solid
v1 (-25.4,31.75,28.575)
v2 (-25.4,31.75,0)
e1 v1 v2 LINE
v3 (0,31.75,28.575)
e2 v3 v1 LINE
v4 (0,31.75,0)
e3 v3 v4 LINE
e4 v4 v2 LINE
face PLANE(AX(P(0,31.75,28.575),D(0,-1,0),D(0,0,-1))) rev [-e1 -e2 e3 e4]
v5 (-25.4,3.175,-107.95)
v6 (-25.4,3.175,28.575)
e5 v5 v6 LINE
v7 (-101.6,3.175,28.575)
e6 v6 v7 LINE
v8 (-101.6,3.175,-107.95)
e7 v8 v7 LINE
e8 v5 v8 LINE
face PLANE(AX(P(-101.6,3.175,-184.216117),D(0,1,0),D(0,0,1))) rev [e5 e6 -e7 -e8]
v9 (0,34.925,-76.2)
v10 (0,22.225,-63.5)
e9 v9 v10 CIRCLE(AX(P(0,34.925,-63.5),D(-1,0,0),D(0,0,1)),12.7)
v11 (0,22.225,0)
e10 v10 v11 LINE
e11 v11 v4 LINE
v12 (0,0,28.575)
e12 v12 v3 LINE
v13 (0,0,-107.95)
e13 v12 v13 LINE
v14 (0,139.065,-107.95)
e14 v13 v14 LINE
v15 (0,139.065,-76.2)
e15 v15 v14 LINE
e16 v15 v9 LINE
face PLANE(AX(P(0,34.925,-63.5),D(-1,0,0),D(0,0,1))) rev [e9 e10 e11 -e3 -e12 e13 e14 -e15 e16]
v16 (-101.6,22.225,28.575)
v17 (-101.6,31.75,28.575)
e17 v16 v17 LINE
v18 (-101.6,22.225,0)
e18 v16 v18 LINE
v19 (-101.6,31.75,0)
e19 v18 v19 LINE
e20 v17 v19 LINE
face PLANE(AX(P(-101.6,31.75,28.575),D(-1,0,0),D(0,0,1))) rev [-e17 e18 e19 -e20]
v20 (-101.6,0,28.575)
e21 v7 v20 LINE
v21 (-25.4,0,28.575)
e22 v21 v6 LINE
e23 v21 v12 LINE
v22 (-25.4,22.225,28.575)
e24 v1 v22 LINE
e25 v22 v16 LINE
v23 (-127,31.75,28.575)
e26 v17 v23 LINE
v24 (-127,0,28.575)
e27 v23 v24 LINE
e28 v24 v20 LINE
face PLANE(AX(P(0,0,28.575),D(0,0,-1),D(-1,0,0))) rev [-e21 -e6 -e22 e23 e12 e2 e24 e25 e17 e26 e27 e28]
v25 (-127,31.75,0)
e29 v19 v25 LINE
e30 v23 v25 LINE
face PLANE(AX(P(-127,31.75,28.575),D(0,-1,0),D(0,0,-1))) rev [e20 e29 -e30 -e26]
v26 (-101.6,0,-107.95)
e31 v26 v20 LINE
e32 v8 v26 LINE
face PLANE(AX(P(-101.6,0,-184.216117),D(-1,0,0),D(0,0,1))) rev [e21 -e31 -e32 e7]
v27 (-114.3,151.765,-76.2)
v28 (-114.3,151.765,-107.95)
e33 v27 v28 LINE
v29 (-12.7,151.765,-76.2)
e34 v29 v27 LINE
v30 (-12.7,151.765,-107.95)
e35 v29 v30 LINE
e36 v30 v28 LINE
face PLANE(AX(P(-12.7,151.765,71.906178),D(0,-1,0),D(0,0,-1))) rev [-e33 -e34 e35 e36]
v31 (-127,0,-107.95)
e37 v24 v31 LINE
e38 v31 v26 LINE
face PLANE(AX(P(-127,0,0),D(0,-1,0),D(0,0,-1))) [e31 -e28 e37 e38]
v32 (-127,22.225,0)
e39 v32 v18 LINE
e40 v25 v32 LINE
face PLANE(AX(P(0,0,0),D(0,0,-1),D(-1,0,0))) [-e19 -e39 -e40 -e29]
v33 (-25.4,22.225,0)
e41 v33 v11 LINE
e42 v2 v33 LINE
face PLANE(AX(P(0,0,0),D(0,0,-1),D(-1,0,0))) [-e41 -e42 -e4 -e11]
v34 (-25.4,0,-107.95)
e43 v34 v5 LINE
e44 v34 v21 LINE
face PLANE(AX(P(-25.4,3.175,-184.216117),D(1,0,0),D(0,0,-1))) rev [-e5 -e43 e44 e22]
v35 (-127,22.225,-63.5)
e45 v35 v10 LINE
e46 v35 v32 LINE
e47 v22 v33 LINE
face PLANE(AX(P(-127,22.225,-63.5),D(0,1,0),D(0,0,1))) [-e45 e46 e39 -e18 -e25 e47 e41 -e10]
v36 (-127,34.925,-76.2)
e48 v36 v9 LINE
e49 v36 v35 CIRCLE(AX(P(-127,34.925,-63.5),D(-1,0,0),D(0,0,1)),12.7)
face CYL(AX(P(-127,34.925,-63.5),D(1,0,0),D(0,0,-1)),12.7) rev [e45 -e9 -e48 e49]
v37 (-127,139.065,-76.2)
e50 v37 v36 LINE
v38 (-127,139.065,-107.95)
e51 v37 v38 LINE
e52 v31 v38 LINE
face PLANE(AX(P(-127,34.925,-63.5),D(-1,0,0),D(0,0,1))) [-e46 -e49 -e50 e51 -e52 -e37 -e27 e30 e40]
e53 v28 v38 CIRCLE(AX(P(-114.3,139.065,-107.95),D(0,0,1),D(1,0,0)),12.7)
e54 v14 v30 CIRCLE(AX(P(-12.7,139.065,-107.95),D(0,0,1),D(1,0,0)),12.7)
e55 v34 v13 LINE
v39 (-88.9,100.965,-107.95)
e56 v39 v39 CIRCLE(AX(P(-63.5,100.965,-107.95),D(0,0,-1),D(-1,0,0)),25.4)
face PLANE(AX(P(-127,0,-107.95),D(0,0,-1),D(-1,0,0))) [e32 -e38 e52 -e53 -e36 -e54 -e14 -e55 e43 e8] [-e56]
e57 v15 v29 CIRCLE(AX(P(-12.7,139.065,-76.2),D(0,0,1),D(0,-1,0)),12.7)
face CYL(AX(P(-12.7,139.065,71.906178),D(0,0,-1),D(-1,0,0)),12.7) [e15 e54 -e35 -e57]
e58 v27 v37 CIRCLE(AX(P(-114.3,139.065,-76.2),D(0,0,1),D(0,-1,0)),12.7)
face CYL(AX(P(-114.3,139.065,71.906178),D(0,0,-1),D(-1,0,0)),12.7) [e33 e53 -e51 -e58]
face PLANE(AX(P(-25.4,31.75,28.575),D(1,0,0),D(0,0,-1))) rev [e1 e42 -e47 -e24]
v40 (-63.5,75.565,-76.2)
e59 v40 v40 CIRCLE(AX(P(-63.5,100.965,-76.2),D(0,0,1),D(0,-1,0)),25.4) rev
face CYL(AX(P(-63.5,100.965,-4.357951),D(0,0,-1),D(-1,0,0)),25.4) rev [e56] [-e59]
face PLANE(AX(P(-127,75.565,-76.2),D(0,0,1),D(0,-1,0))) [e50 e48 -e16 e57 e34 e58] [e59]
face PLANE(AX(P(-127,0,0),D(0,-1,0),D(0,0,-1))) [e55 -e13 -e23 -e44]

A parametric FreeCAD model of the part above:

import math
import FreeCAD as App
import Part
import Sketcher
Q = App.Units.Quantity

doc = App.newDocument("Part")
body = doc.addObject("PartDesign::Body", "Body")

sketch1 = body.newObject("Sketcher::SketchObject", "Sketch")
sketch1.AttachmentSupport = (doc.getObject("YZ_Plane"), [""])
sketch1.MapMode = "FlatFace"
sketch1.addGeometry([
    Part.LineSegment(App.Vector(0, 0, 0), App.Vector(0, -107.95, 0)),
    Part.LineSegment(App.Vector(0, -107.95, 0), App.Vector(75.565, -107.95, 0)),
    Part.LineSegment(App.Vector(75.565, -107.95, 0), App.Vector(75.565, -76.2, 0)),
    Part.LineSegment(App.Vector(75.565, -76.2, 0), App.Vector(34.925, -76.2, 0)),
    Part.ArcOfCircle(Part.Circle(App.Vector(34.925, -63.5, 0), App.Vector(0, 0, 1), 12.7), math.radians(180), math.radians(270)),
    Part.LineSegment(App.Vector(22.225, -63.5, 0), App.Vector(22.225, 0, 0)),
    Part.LineSegment(App.Vector(22.225, 0, 0), App.Vector(0, 0, 0)),
], False)
sketch1.addConstraint([
    Sketcher.Constraint("Coincident", 0, 2, 1, 1),
    Sketcher.Constraint("Coincident", 1, 2, 2, 1),
    Sketcher.Constraint("Coincident", 2, 2, 3, 1),
    Sketcher.Constraint("Tangent", 3, 2, 4, 2),
    Sketcher.Constraint("Tangent", 4, 1, 5, 1),
    Sketcher.Constraint("Coincident", 5, 2, 6, 1),
    Sketcher.Constraint("Coincident", 6, 2, 0, 1),
    Sketcher.Constraint("Vertical", 0),
    Sketcher.Constraint("Horizontal", 1),
    Sketcher.Constraint("Vertical", 2),
    Sketcher.Constraint("Horizontal", 3),
    Sketcher.Constraint("Vertical", 5),
    Sketcher.Constraint("Horizontal", 6),
    Sketcher.Constraint("Coincident", 6, 2, -1, 1),
    Sketcher.Constraint("Radius", 4, Q("0.5 in")),
    Sketcher.Constraint("DistanceX", 3, 2, 3, 1, Q("1.6 in")),
    Sketcher.Constraint("DistanceY", 5, 1, 5, 2, Q("2.5 in")),
    Sketcher.Constraint("DistanceY", 0, 2, 0, 1, Q("4.25 in")),
    Sketcher.Constraint("DistanceX", 1, 1, 1, 2, Q("2.975 in")),
])
pad1 = body.newObject("PartDesign::Pad", "Pad")
pad1.Profile = sketch1
pad1.Length = Q("5 in")
pad1.Reversed = True

sketch2 = body.newObject("Sketcher::SketchObject", "Sketch001")
sketch2.AttachmentSupport = (doc.getObject("XY_Plane"), [""])
sketch2.MapMode = "FlatFace"
sketch2.addGeometry([
    Part.LineSegment(App.Vector(0, 0, 0), App.Vector(0, 31.75, 0)),
    Part.LineSegment(App.Vector(0, 31.75, 0), App.Vector(-25.4, 31.75, 0)),
    Part.LineSegment(App.Vector(-25.4, 31.75, 0), App.Vector(-25.4, 22.225, 0)),
    Part.LineSegment(App.Vector(-25.4, 22.225, 0), App.Vector(-101.6, 22.225, 0)),
    Part.LineSegment(App.Vector(-101.6, 22.225, 0), App.Vector(-101.6, 31.75, 0)),
    Part.LineSegment(App.Vector(-101.6, 31.75, 0), App.Vector(-127, 31.75, 0)),
    Part.LineSegment(App.Vector(-127, 31.75, 0), App.Vector(-127, 0, 0)),
    Part.LineSegment(App.Vector(-127, 0, 0), App.Vector(0, 0, 0)),
], False)
sketch2.addConstraint([
    Sketcher.Constraint("Coincident", 0, 2, 1, 1),
    Sketcher.Constraint("Coincident", 1, 2, 2, 1),
    Sketcher.Constraint("Coincident", 2, 2, 3, 1),
    Sketcher.Constraint("Coincident", 3, 2, 4, 1),
    Sketcher.Constraint("Coincident", 4, 2, 5, 1),
    Sketcher.Constraint("Coincident", 5, 2, 6, 1),
    Sketcher.Constraint("Coincident", 6, 2, 7, 1),
    Sketcher.Constraint("Coincident", 7, 2, 0, 1),
    Sketcher.Constraint("Vertical", 0),
    Sketcher.Constraint("Horizontal", 1),
    Sketcher.Constraint("Vertical", 2),
    Sketcher.Constraint("Horizontal", 3),
    Sketcher.Constraint("Vertical", 4),
    Sketcher.Constraint("Horizontal", 5),
    Sketcher.Constraint("Vertical", 6),
    Sketcher.Constraint("Horizontal", 7),
    Sketcher.Constraint("Coincident", 7, 2, -1, 1),
    Sketcher.Constraint("Horizontal", 1, 2, 4, 2),
    Sketcher.Constraint("Equal", 1, 5),
    Sketcher.Constraint("DistanceX", 1, 2, 1, 1, Q("1 in")),
    Sketcher.Constraint("DistanceX", 3, 2, 3, 1, Q("3 in")),
    Sketcher.Constraint("DistanceY", 0, 1, 0, 2, Q("1.25 in")),
    Sketcher.Constraint("DistanceY", 2, 2, 2, 1, Q("0.375 in")),
])
pad2 = body.newObject("PartDesign::Pad", "Pad001")
pad2.Profile = sketch2
pad2.Length = Q("1.125 in")

sketch3 = body.newObject("Sketcher::SketchObject", "Sketch002")
sketch3.AttachmentSupport = (doc.getObject("XY_Plane"), [""])
sketch3.MapMode = "FlatFace"
sketch3.AttachmentOffset = App.Placement(App.Vector(0, 0, -4.25 * 25.4), App.Rotation())
sketch3.addGeometry([
    Part.LineSegment(App.Vector(0, 139.065, 0), App.Vector(0, 75.565, 0)),
    Part.LineSegment(App.Vector(0, 75.565, 0), App.Vector(-127, 75.565, 0)),
    Part.LineSegment(App.Vector(-127, 75.565, 0), App.Vector(-127, 139.065, 0)),
    Part.ArcOfCircle(Part.Circle(App.Vector(-114.3, 139.065, 0), App.Vector(0, 0, 1), 12.7), math.radians(90), math.radians(180)),
    Part.LineSegment(App.Vector(-114.3, 151.765, 0), App.Vector(-12.7, 151.765, 0)),
    Part.ArcOfCircle(Part.Circle(App.Vector(-12.7, 139.065, 0), App.Vector(0, 0, 1), 12.7), math.radians(0), math.radians(90)),
], False)
sketch3.addConstraint([
    Sketcher.Constraint("Coincident", 0, 2, 1, 1),
    Sketcher.Constraint("Coincident", 1, 2, 2, 1),
    Sketcher.Constraint("Tangent", 2, 2, 3, 2),
    Sketcher.Constraint("Tangent", 3, 1, 4, 1),
    Sketcher.Constraint("Tangent", 4, 2, 5, 2),
    Sketcher.Constraint("Tangent", 5, 1, 0, 1),
    Sketcher.Constraint("Vertical", 0),
    Sketcher.Constraint("Horizontal", 1),
    Sketcher.Constraint("Vertical", 2),
    Sketcher.Constraint("Horizontal", 4),
    Sketcher.Constraint("Equal", 3, 5),
    Sketcher.Constraint("PointOnObject", 0, 2, -2),
    Sketcher.Constraint("Radius", 3, Q("0.5 in")),
    Sketcher.Constraint("DistanceX", 1, 2, 1, 1, Q("5 in")),
    Sketcher.Constraint("DistanceY", 0, 2, 0, 1, Q("2.5 in")),
    Sketcher.Constraint("DistanceY", -1, 1, 3, 3, Q("5.475 in")),
])
pad3 = body.newObject("PartDesign::Pad", "Pad002")
pad3.Profile = sketch3
pad3.Length = Q("1.25 in")

sketch4 = body.newObject("Sketcher::SketchObject", "Sketch003")
sketch4.AttachmentSupport = (doc.getObject("XY_Plane"), [""])
sketch4.MapMode = "FlatFace"
sketch4.AttachmentOffset = App.Placement(App.Vector(0, 0, -4.25 * 25.4), App.Rotation())
sketch4.addGeometry(Part.Circle(App.Vector(-63.5, 100.965, 0), App.Vector(0, 0, 1), 25.4), False)
sketch4.addConstraint([
    Sketcher.Constraint("Diameter", 0, Q("2 in")),
    Sketcher.Constraint("DistanceX", 0, 3, -1, 1, Q("2.5 in")),
    Sketcher.Constraint("DistanceY", -1, 1, 0, 3, Q("3.975 in")),
])
pocket1 = body.newObject("PartDesign::Pocket", "Pocket")
pocket1.Profile = sketch4
pocket1.Length = Q("1.25 in")
pocket1.Reversed = True

sketch5 = body.newObject("Sketcher::SketchObject", "Sketch004")
sketch5.AttachmentSupport = (doc.getObject("XY_Plane"), [""])
sketch5.MapMode = "FlatFace"
sketch5.AttachmentOffset = App.Placement(App.Vector(0, 0, 1.125 * 25.4), App.Rotation())
sketch5.addGeometry([
    Part.LineSegment(App.Vector(-101.6, 3.175, 0), App.Vector(-101.6, 0, 0)),
    Part.LineSegment(App.Vector(-101.6, 0, 0), App.Vector(-25.4, 0, 0)),
    Part.LineSegment(App.Vector(-25.4, 0, 0), App.Vector(-25.4, 3.175, 0)),
    Part.LineSegment(App.Vector(-25.4, 3.175, 0), App.Vector(-101.6, 3.175, 0)),
], False)
sketch5.addConstraint([
    Sketcher.Constraint("Coincident", 0, 2, 1, 1),
    Sketcher.Constraint("Coincident", 1, 2, 2, 1),
    Sketcher.Constraint("Coincident", 2, 2, 3, 1),
    Sketcher.Constraint("Coincident", 3, 2, 0, 1),
    Sketcher.Constraint("Vertical", 0),
    Sketcher.Constraint("Horizontal", 1),
    Sketcher.Constraint("Vertical", 2),
    Sketcher.Constraint("Horizontal", 3),
    Sketcher.Constraint("PointOnObject", 0, 2, -1),
    Sketcher.Constraint("DistanceX", 1, 1, 1, 2, Q("3 in")),
    Sketcher.Constraint("DistanceX", 0, 2, -1, 1, Q("4 in")),
    Sketcher.Constraint("DistanceY", 0, 2, 0, 1, Q("0.125 in")),
])
pocket2 = body.newObject("PartDesign::Pocket", "Pocket001")
pocket2.Profile = sketch5
pocket2.Length = Q("5.375 in")

doc.recompute()
